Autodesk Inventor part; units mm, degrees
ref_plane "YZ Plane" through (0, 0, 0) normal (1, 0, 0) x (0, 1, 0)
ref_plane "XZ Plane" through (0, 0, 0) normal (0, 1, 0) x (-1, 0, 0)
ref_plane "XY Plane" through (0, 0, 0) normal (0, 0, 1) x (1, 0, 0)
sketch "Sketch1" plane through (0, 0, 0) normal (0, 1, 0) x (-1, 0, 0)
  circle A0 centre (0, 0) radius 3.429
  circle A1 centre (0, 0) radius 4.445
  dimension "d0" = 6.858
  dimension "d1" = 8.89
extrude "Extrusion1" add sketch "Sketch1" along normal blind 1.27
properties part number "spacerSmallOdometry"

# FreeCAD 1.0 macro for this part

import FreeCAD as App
import Part
import Sketcher
Q = App.Units.Quantity

doc = App.newDocument("Part")
body = doc.addObject("PartDesign::Body", "Body")

# Sketch on XZ plane
sketch1 = doc.addObject("Sketcher::SketchObject", "Sketch")
body.addObject(sketch1)
sketch1.AttachmentSupport = (doc.XZ_Plane, [""])
sketch1.MapMode = "FlatFace"
sketch1.addGeometry([
    Part.Circle(App.Vector(0, 0, 0), App.Vector(0, 0, 1), 4.4),
    Part.Circle(App.Vector(0, 0, 0), App.Vector(0, 0, 1), 3.4),
], False)
sketch1.addConstraint([
    Sketcher.Constraint("Coincident", 0, 3, -1, 1),
    Sketcher.Constraint("Coincident", 1, 3, -1, 1),
    Sketcher.Constraint("Diameter", 0, Q("0.35 in")),
    Sketcher.Constraint("Diameter", 1, Q("0.27 in")),
])
pad1 = doc.addObject("PartDesign::Pad", "Pad")
body.addObject(pad1)
pad1.Profile = sketch1
pad1.Length = Q("0.05 in")
pad1.Reversed = True

doc.recompute()
